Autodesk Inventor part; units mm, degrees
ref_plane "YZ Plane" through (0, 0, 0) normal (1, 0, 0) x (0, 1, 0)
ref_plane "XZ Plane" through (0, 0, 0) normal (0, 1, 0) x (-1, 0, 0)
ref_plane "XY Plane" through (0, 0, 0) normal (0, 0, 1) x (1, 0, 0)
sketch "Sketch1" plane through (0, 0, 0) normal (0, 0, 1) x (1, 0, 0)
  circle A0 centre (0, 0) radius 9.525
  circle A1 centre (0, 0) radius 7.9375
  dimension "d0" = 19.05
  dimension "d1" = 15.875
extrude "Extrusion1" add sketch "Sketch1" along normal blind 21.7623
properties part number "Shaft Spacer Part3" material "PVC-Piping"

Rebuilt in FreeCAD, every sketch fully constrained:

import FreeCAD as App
import Part
import Sketcher
Q = App.Units.Quantity

doc = App.newDocument("Part")
body = doc.addObject("PartDesign::Body", "Body")

sketch1 = body.newObject("Sketcher::SketchObject", "Sketch")
sketch1.AttachmentSupport = (doc.getObject("XY_Plane"), [""])
sketch1.MapMode = "FlatFace"
sketch1.addGeometry([
    Part.Circle(App.Vector(0, 0, 0), App.Vector(0, 0, 1), 10),
    Part.Circle(App.Vector(0, 0, 0), App.Vector(0, 0, 1), 8),
], False)
sketch1.addConstraint([
    Sketcher.Constraint("Coincident", 0, 3, -1, 1),
    Sketcher.Constraint("Coincident", 1, 3, -1, 1),
    Sketcher.Constraint("Diameter", 0, Q("0.75 in")),
    Sketcher.Constraint("Diameter", 1, Q("0.625 in")),
])
pad1 = body.newObject("PartDesign::Pad", "Pad")
pad1.Profile = sketch1
pad1.Length = 21.7623

doc.recompute()
